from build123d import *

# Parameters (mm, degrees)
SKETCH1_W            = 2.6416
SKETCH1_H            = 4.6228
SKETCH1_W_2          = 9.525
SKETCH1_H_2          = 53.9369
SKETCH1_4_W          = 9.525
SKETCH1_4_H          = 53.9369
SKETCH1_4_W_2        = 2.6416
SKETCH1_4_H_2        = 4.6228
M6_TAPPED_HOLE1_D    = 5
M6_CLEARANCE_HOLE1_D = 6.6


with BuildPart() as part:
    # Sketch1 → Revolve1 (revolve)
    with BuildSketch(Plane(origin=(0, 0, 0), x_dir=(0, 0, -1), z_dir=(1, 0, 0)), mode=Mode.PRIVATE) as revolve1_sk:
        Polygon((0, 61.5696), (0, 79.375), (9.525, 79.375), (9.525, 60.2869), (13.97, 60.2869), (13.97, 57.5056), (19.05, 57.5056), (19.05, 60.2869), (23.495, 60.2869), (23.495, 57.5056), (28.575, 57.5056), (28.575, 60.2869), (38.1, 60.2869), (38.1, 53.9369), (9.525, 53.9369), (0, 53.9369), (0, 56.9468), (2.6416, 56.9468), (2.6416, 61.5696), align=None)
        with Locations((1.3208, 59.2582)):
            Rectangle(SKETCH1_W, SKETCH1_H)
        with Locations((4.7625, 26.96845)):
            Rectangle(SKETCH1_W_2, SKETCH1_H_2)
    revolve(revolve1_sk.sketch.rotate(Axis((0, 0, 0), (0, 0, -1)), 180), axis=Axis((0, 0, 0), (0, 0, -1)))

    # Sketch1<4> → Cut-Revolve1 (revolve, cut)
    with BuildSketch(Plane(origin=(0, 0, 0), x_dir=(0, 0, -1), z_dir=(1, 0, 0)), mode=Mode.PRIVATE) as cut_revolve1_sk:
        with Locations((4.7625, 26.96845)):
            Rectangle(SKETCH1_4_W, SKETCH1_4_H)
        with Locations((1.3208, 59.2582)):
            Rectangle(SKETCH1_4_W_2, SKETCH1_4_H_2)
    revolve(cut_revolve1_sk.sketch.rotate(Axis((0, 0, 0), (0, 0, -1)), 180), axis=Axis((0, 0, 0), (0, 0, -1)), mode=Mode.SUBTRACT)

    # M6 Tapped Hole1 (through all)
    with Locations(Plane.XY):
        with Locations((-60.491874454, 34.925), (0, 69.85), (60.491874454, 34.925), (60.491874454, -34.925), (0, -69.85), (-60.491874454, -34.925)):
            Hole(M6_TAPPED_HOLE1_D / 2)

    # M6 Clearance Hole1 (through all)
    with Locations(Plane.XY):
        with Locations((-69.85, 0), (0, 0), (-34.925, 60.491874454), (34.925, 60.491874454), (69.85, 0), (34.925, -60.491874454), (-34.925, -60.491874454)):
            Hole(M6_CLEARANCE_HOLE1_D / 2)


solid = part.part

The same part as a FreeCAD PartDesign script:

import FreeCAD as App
import Part
import Sketcher

V = App.Vector
Q = App.Units.Quantity


def add_polygon(sketch, points):
    """Adds a closed chain of lines whose ends are joined by coincident constraints."""
    first, n = sketch.GeometryCount, len(points)
    for a, b in zip(points, points[1:] + points[:1]):
        sketch.addGeometry(Part.LineSegment(App.Vector(*a, 0), App.Vector(*b, 0)), False)
    for i in range(n):
        sketch.addConstraint(Sketcher.Constraint("Coincident", first + i, 2, first + (i + 1) % n, 1))

doc = App.newDocument("Part")
body = doc.addObject("PartDesign::Body", "Body")

# Sketch on YZ plane
sketch1 = doc.addObject("Sketcher::SketchObject", "Sketch")
body.addObject(sketch1)
sketch1.AttachmentSupport = (doc.YZ_Plane, [""])
sketch1.MapMode = "FlatFace"
add_polygon(sketch1, [(79.4, 0), (0, 0), (0, -9.5), (53.9, -9.5), (53.9, -38.1), (60.3, -38.1), (60.3, -28.6), (57.5, -28.6), (57.5, -23.5), (60.3, -23.5), (60.3, -19.1), (57.5, -19.1), (57.5, -14), (60.3, -14), (60.3, -9.5), (79.4, -9.5)])  # lines 0-15
sketch1.addConstraint([
    Sketcher.Constraint("Horizontal", 0),
    Sketcher.Constraint("Vertical", 1),
    Sketcher.Constraint("Horizontal", 2),
    Sketcher.Constraint("Vertical", 3),
    Sketcher.Constraint("Horizontal", 4),
    Sketcher.Constraint("Vertical", 5),
    Sketcher.Constraint("Horizontal", 6),
    Sketcher.Constraint("Vertical", 7),
    Sketcher.Constraint("Horizontal", 8),
    Sketcher.Constraint("Vertical", 9),
    Sketcher.Constraint("Horizontal", 10),
    Sketcher.Constraint("Vertical", 11),
    Sketcher.Constraint("Horizontal", 12),
    Sketcher.Constraint("Vertical", 13),
    Sketcher.Constraint("Horizontal", 14),
    Sketcher.Constraint("Vertical", 15),
    Sketcher.Constraint("Coincident", 0, 2, -1, 1),
    Sketcher.Constraint("Horizontal", 2, 2, 13, 2),
    Sketcher.Constraint("Vertical", 5, 2, 8, 2),
    Sketcher.Constraint("Vertical", 7, 2, 10, 2),
    Sketcher.Constraint("Vertical", 9, 2, 12, 2),
    Sketcher.Constraint("Equal", 1, 5),
    Sketcher.Constraint("Equal", 7, 11),
    Sketcher.Constraint("Equal", 9, 13),
    Sketcher.Constraint("DistanceY", 7, 1, 7, 2, Q("0.2 in")),
    Sketcher.Constraint("DistanceX", 4, 1, 4, 2, Q("0.25 in")),
    Sketcher.Constraint("DistanceY", 3, 2, -1, 1, Q("1.5 in")),
    Sketcher.Constraint("DistanceX", 0, 2, 0, 1, Q("3.125 in")),
    Sketcher.Constraint("DistanceY", 1, 2, 1, 1, Q("0.375 in")),
    Sketcher.Constraint("DistanceX", 2, 1, 2, 2, Q("2.1235 in")),
    Sketcher.Constraint("DistanceX", 6, 2, 6, 1, Q("0.1095 in")),
])
revolution = doc.addObject("PartDesign::Revolution", "Revolution")
body.addObject(revolution)
revolution.Profile = sketch1
revolution.ReferenceAxis = (sketch1, ["V_Axis"])
revolution.Angle = 360

# Sketch on YZ plane
sketch2 = doc.addObject("Sketcher::SketchObject", "Sketch001")
body.addObject(sketch2)
sketch2.AttachmentSupport = (doc.YZ_Plane, [""])
sketch2.MapMode = "FlatFace"
add_polygon(sketch2, [(53.9, 0), (0, 0), (0, -9.5), (53.9, -9.5)])  # lines 0-3
add_polygon(sketch2, [(61.6, 0), (56.9, 0), (56.9, -2.6), (61.6, -2.6)])  # lines 4-7
sketch2.addConstraint([
    Sketcher.Constraint("Horizontal", 0),
    Sketcher.Constraint("Vertical", 1),
    Sketcher.Constraint("Horizontal", 2),
    Sketcher.Constraint("Vertical", 3),
    Sketcher.Constraint("Horizontal", 4),
    Sketcher.Constraint("Vertical", 5),
    Sketcher.Constraint("Horizontal", 6),
    Sketcher.Constraint("Vertical", 7),
    Sketcher.Constraint("Coincident", 0, 2, -1, 1),
    Sketcher.Constraint("PointOnObject", 4, 2, -1),
    Sketcher.Constraint("DistanceX", 4, 2, 4, 1, Q("0.182 in")),
    Sketcher.Constraint("DistanceY", 1, 2, 1, 1, Q("0.375 in")),
    Sketcher.Constraint("DistanceY", 5, 2, 5, 1, Q("0.104 in")),
    Sketcher.Constraint("DistanceX", 0, 2, 0, 1, Q("2.1235 in")),
    Sketcher.Constraint("DistanceX", -1, 1, 4, 2, Q("2.242 in")),
])
groove = doc.addObject("PartDesign::Groove", "Groove")
body.addObject(groove)
groove.Profile = sketch2
groove.ReferenceAxis = (sketch2, ["V_Axis"])
groove.Angle = 360

# Sketch on XY plane
sketch3 = doc.addObject("Sketcher::SketchObject", "Sketch002")
body.addObject(sketch3)
sketch3.AttachmentSupport = (doc.XY_Plane, [""])
sketch3.MapMode = "FlatFace"
sketch3.addGeometry([
    Part.Circle(V(-60.5, 34.9, 0), V(0, 0, 1), 2.5),  # 0
    Part.Circle(V(0, 69.8, 0), V(0, 0, 1), 2.5),  # 1
    Part.Circle(V(60.5, 34.9, 0), V(0, 0, 1), 2.5),  # 2
    Part.Circle(V(60.5, -34.9, 0), V(0, 0, 1), 2.5),  # 3
    Part.Circle(V(0, -69.8, 0), V(0, 0, 1), 2.5),  # 4
    Part.Circle(V(-60.5, -34.9, 0), V(0, 0, 1), 2.5),  # 5
], False)
sketch3.addConstraint([
    Sketcher.Constraint("Equal", 0, 1),
    Sketcher.Constraint("Equal", 1, 2),
    Sketcher.Constraint("Equal", 2, 3),
    Sketcher.Constraint("Equal", 3, 4),
    Sketcher.Constraint("Equal", 4, 5),
    Sketcher.Constraint("Symmetric", 0, 3, 3, 3, -1, 1),
    Sketcher.Constraint("Symmetric", 1, 3, 4, 3, -1, 1),
    Sketcher.Constraint("Symmetric", 2, 3, 5, 3, -1, 1),
    Sketcher.Constraint("Symmetric", 0, 3, 2, 3, -2),
    Sketcher.Constraint("PointOnObject", 1, 3, -2),
    Sketcher.Constraint("DistanceY", 4, 3, 1, 3, Q("5.5 in")),
    Sketcher.Constraint("Diameter", 0, Q("5 mm")),
    Sketcher.Constraint("DistanceY", 3, 3, 2, 3, Q("2.75 in")),
    Sketcher.Constraint("DistanceX", 0, 3, 2, 3, Q("120.983749 mm")),
])
doc.recompute()
hole = doc.addObject("PartDesign::Hole", "Hole")
body.addObject(hole)
hole.Profile = sketch3
hole.ThreadType = "None"
hole.Diameter = 5
hole.DepthType = "ThroughAll"

# Sketch on XY plane
sketch4 = doc.addObject("Sketcher::SketchObject", "Sketch003")
body.addObject(sketch4)
sketch4.AttachmentSupport = (doc.XY_Plane, [""])
sketch4.MapMode = "FlatFace"
sketch4.addGeometry([
    Part.Circle(V(-69.8, 0, 0), V(0, 0, 1), 3.3),  # 0
    Part.Circle(V(0, 0, 0), V(0, 0, 1), 3.3),  # 1
    Part.Circle(V(-34.9, 60.5, 0), V(0, 0, 1), 3.3),  # 2
    Part.Circle(V(34.9, 60.5, 0), V(0, 0, 1), 3.3),  # 3
    Part.Circle(V(69.8, 0, 0), V(0, 0, 1), 3.3),  # 4
    Part.Circle(V(34.9, -60.5, 0), V(0, 0, 1), 3.3),  # 5
    Part.Circle(V(-34.9, -60.5, 0), V(0, 0, 1), 3.3),  # 6
], False)
sketch4.addConstraint([
    Sketcher.Constraint("Coincident", 1, 3, -1, 1),
    Sketcher.Constraint("Equal", 0, 1),
    Sketcher.Constraint("Equal", 1, 2),
    Sketcher.Constraint("Equal", 2, 3),
    Sketcher.Constraint("Equal", 3, 4),
    Sketcher.Constraint("Equal", 4, 5),
    Sketcher.Constraint("Equal", 5, 6),
    Sketcher.Constraint("Symmetric", 0, 3, 4, 3, -1, 1),
    Sketcher.Constraint("Symmetric", 2, 3, 5, 3, -1, 1),
    Sketcher.Constraint("Symmetric", 3, 3, 6, 3, -1, 1),
    Sketcher.Constraint("Symmetric", 2, 3, 3, 3, -2),
    Sketcher.Constraint("PointOnObject", 0, 3, -1),
    Sketcher.Constraint("DistanceX", 0, 3, 4, 3, Q("5.5 in")),
    Sketcher.Constraint("Diameter", 0, Q("6.6 mm")),
    Sketcher.Constraint("DistanceX", 2, 3, 3, 3, Q("2.75 in")),
    Sketcher.Constraint("DistanceY", 5, 3, 3, 3, Q("120.983749 mm")),
])
doc.recompute()
hole2 = doc.addObject("PartDesign::Hole", "Hole001")
body.addObject(hole2)
hole2.Profile = sketch4
hole2.ThreadType = "None"
hole2.Diameter = 6.6
hole2.DepthType = "ThroughAll"

doc.recompute()
